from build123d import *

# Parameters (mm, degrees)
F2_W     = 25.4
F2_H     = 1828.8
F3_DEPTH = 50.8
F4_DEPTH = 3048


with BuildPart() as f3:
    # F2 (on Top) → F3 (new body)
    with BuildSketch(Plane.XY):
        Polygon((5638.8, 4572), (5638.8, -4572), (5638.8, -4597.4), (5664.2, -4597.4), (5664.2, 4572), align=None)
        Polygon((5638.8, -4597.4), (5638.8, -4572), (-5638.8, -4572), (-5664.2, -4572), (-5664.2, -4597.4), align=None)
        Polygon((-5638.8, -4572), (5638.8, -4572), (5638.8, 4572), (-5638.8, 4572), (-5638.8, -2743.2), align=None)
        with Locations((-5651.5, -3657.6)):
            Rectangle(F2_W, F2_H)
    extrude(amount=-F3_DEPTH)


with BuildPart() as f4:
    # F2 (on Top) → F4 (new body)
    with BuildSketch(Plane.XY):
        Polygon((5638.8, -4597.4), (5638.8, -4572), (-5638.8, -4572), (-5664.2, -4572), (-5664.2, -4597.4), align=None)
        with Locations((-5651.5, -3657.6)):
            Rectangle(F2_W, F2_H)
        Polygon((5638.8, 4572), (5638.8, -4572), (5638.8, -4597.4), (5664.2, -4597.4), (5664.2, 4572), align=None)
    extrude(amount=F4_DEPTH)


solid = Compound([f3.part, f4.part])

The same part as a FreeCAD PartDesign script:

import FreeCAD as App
import Part
import Sketcher
from FreeCAD import Vector
Q = App.Units.Quantity


def add_polygon(sketch, points):
    """Adds a closed chain of lines whose ends are joined by coincident constraints."""
    first, n = sketch.GeometryCount, len(points)
    for a, b in zip(points, points[1:] + points[:1]):
        sketch.addGeometry(Part.LineSegment(App.Vector(*a, 0), App.Vector(*b, 0)), False)
    for i in range(n):
        sketch.addConstraint(Sketcher.Constraint("Coincident", first + i, 2, first + (i + 1) % n, 1))

doc = App.newDocument("Part")
body = doc.addObject("PartDesign::Body", "Body")

sketch1 = doc.addObject("Sketcher::SketchObject", "Sketch")
body.addObject(sketch1)
sketch1.AttachmentSupport = (doc.XY_Plane, [""])
sketch1.MapMode = "FlatFace"
add_polygon(sketch1, [(-5664, -4597), (5664, -4597), (5664, 4572), (-5639, 4572), (-5639, -2743), (-5664, -2743)])
sketch1.addConstraint([
    Sketcher.Constraint("Horizontal", 0),
    Sketcher.Constraint("Vertical", 1),
    Sketcher.Constraint("Horizontal", 2),
    Sketcher.Constraint("Vertical", 3),
    Sketcher.Constraint("Horizontal", 4),
    Sketcher.Constraint("Vertical", 5),
    Sketcher.Constraint("DistanceX", 0, 1, 0, 2, Q("446 in")),
    Sketcher.Constraint("DistanceX", 2, 2, 2, 1, Q("445 in")),
    Sketcher.Constraint("DistanceY", 1, 1, 1, 2, Q("361 in")),
    Sketcher.Constraint("DistanceY", 3, 2, 3, 1, Q("288 in")),
    Sketcher.Constraint("DistanceX", -1, 1, 0, 2, Q("223 in")),
    Sketcher.Constraint("DistanceY", 0, 2, -1, 1, Q("181 in")),
])
pad1 = doc.addObject("PartDesign::Pad", "Pad")
body.addObject(pad1)
pad1.Profile = sketch1
pad1.Length = Q("2 in")
pad1.Reversed = True
body2 = doc.addObject("PartDesign::Body", "Body001")

sketch2 = doc.addObject("Sketcher::SketchObject", "Sketch001")
body2.addObject(sketch2)
sketch2.AttachmentSupport = (doc.getObject("XY_Plane001"), [""])
sketch2.MapMode = "FlatFace"
add_polygon(sketch2, [(5639, -4572), (-5639, -4572), (-5639, -2743), (-5664, -2743), (-5664, -4597), (5664, -4597), (5664, 4572), (5639, 4572)])
sketch2.addConstraint([
    Sketcher.Constraint("Horizontal", 0),
    Sketcher.Constraint("Vertical", 1),
    Sketcher.Constraint("Horizontal", 2),
    Sketcher.Constraint("Vertical", 3),
    Sketcher.Constraint("Horizontal", 4),
    Sketcher.Constraint("Vertical", 5),
    Sketcher.Constraint("Horizontal", 6),
    Sketcher.Constraint("Vertical", 7),
    Sketcher.Constraint("Symmetric", 0, 2, 6, 2, -1, 1),
    Sketcher.Constraint("Equal", 2, 6),
    Sketcher.Constraint("DistanceX", 0, 2, 0, 1, Q("444 in")),
    Sketcher.Constraint("DistanceX", 2, 2, 2, 1, Q("1 in")),
    Sketcher.Constraint("DistanceY", 1, 1, 1, 2, Q("72 in")),
    Sketcher.Constraint("DistanceY", 3, 2, 3, 1, Q("73 in")),
    Sketcher.Constraint("DistanceY", 5, 1, 5, 2, Q("361 in")),
])
pad2 = doc.addObject("PartDesign::Pad", "Pad001")
body2.addObject(pad2)
pad2.Profile = sketch2
pad2.Length = Q("120 in")

doc.recompute()
